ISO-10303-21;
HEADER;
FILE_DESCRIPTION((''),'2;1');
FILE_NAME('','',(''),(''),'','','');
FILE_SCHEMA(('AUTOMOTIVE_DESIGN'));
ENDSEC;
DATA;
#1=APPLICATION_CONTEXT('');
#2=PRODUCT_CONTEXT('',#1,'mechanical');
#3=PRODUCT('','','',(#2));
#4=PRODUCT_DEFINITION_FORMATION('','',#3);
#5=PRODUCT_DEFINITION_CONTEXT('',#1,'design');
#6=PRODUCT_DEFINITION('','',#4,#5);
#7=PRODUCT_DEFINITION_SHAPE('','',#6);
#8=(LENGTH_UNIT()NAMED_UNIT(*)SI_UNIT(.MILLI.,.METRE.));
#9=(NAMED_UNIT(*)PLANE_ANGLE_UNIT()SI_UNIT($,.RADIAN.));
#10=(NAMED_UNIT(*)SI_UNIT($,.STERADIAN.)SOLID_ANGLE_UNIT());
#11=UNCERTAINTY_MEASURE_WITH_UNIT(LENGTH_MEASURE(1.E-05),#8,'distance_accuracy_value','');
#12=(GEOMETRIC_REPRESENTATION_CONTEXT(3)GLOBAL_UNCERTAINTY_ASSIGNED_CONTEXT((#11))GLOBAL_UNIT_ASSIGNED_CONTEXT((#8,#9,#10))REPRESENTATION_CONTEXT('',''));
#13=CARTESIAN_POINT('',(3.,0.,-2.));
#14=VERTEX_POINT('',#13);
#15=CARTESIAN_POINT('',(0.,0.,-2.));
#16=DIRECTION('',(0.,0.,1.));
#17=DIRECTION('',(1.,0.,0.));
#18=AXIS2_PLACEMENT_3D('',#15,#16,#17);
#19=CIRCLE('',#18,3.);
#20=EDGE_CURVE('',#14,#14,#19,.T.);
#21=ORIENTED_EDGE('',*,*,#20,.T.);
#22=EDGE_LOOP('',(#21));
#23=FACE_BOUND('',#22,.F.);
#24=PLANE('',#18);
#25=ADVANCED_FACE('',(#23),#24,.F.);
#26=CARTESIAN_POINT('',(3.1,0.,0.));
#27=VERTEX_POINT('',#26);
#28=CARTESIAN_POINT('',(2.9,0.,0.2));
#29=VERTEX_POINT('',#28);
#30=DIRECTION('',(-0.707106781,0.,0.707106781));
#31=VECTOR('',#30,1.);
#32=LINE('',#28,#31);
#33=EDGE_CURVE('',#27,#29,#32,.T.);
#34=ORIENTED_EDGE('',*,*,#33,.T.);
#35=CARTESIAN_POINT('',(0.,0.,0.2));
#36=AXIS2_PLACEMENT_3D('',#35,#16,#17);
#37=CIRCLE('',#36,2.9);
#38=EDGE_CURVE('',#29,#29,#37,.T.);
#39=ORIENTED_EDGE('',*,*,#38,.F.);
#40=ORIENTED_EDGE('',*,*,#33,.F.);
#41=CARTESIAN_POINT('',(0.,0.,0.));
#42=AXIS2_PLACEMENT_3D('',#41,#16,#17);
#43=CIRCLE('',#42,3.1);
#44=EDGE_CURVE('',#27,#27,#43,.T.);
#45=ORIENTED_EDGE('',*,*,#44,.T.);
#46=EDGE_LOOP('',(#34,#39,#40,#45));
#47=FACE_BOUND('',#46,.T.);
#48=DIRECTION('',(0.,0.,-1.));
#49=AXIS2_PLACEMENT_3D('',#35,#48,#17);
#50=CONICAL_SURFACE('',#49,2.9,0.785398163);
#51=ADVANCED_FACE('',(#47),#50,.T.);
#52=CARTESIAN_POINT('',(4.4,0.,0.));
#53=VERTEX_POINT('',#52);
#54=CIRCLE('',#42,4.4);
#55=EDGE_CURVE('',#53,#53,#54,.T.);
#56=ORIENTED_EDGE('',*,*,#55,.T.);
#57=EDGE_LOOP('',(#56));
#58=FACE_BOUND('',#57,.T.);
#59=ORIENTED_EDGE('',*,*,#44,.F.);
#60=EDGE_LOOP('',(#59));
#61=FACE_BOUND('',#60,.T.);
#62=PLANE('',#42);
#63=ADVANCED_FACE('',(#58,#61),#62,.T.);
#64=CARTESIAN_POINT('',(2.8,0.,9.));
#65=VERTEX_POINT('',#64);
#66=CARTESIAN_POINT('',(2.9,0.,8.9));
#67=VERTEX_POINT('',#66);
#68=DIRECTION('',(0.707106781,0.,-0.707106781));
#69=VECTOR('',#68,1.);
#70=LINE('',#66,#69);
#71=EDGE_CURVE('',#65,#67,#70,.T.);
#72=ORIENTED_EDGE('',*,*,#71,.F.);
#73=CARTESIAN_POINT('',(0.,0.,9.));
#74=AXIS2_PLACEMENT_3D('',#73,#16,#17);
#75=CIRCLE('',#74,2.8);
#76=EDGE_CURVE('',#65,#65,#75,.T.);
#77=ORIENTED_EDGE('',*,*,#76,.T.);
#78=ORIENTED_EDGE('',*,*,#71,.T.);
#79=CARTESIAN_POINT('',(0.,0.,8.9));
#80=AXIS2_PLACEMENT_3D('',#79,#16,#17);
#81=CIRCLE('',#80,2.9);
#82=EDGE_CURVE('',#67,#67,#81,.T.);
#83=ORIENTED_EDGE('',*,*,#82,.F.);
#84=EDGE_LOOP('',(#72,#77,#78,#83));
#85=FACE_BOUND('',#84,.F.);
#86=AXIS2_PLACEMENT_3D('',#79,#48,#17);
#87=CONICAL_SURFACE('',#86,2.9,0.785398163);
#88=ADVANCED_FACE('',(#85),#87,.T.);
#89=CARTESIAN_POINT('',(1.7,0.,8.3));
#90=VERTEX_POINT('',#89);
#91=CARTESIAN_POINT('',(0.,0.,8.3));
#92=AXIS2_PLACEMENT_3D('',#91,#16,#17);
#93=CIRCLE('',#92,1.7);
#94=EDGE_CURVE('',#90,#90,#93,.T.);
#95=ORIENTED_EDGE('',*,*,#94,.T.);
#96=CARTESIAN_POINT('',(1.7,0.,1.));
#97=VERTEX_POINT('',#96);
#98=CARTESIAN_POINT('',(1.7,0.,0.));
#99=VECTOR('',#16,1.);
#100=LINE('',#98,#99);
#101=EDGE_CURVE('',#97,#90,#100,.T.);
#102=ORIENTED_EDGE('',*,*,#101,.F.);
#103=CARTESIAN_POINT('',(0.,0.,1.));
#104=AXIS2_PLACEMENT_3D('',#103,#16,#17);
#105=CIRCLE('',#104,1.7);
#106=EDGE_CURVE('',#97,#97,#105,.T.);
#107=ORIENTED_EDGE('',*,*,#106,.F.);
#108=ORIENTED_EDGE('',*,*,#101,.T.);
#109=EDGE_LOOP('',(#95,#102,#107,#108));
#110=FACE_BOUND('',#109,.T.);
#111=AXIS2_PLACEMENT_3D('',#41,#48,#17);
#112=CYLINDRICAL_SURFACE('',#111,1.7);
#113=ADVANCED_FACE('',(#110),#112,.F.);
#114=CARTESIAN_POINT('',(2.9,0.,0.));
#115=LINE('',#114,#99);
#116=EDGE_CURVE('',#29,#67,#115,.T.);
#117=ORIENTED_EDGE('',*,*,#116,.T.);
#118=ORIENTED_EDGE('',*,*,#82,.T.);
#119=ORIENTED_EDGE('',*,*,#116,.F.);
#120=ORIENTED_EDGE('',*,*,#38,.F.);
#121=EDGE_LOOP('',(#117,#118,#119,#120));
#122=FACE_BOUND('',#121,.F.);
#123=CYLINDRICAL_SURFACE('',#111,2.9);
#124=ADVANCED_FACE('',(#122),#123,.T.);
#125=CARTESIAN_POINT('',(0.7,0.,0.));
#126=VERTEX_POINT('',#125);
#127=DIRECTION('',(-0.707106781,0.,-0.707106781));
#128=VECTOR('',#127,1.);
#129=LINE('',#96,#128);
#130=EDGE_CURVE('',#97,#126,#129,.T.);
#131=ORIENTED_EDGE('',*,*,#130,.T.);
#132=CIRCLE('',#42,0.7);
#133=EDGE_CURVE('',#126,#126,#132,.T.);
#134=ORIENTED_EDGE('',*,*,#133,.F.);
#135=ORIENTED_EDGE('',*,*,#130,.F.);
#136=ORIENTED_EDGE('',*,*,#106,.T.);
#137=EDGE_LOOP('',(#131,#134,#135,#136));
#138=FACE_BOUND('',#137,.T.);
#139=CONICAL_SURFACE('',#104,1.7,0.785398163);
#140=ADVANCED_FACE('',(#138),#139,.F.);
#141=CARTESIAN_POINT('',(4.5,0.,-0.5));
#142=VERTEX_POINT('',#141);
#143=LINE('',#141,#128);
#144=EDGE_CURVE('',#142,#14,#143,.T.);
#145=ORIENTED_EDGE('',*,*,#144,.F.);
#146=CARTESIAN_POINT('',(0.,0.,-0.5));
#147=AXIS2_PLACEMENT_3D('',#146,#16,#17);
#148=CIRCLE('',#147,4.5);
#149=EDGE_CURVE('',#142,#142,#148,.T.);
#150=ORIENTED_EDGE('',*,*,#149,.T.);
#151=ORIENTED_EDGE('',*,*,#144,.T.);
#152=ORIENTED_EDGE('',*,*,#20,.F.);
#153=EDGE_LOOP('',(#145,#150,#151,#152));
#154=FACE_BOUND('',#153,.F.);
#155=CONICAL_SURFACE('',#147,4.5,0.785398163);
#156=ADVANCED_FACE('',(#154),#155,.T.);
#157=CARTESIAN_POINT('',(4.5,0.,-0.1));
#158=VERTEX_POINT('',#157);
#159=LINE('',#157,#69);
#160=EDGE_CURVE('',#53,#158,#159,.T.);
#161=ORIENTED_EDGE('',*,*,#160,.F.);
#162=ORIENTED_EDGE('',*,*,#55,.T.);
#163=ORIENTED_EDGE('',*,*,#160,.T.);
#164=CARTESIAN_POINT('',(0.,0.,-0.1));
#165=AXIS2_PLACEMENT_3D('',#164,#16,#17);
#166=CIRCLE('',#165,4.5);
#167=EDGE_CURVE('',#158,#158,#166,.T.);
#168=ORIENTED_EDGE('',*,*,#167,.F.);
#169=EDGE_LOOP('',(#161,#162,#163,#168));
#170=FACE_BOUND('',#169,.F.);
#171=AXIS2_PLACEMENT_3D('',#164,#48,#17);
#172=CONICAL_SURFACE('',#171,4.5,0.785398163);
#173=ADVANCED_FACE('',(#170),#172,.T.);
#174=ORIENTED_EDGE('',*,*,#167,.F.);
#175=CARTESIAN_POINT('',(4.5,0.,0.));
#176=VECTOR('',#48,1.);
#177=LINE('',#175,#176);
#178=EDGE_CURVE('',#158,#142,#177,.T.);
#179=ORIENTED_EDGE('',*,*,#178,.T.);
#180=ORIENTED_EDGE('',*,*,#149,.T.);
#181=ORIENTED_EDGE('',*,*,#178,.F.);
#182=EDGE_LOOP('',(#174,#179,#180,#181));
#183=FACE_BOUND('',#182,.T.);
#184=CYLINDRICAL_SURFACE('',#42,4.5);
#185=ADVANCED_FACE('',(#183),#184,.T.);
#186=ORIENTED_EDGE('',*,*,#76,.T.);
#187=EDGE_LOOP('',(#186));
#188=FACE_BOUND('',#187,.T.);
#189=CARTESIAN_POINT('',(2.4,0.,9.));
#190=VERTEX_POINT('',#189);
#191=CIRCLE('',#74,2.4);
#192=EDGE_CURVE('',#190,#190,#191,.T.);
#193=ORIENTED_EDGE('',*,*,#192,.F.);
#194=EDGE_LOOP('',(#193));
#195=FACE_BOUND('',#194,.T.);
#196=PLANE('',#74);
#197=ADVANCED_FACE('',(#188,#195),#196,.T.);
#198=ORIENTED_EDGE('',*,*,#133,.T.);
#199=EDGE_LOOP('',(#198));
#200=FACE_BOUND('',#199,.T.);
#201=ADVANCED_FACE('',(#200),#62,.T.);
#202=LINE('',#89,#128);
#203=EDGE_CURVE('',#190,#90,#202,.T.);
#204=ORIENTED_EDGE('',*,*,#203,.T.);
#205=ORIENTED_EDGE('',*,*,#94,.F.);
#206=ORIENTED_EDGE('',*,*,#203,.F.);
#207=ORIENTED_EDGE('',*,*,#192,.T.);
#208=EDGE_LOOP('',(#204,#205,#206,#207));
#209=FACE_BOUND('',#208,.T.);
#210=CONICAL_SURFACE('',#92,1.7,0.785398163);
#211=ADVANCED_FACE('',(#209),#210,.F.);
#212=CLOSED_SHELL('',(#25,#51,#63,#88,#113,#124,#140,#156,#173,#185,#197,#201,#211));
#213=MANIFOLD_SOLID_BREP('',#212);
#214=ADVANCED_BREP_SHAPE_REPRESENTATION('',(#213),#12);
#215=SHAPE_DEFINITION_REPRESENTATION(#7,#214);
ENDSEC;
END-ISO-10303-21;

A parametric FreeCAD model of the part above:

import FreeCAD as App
import Part
import Sketcher
from FreeCAD import Vector


def edges_at(feature, points):
    """Names of the edges that pass closest to the given points."""
    edges = feature.Shape.Edges
    near = lambda p: min(range(len(edges)), key=lambda i: edges[i].distToShape(Part.Vertex(*p))[0])
    return sorted({f"Edge{near(p) + 1}" for p in points})

doc = App.newDocument("Part")
body = doc.addObject("PartDesign::Body", "Body")

sketch1 = body.newObject("Sketcher::SketchObject", "Sketch")
sketch1.AttachmentSupport = (doc.getObject("XY_Plane"), [""])
sketch1.MapMode = "FlatFace"
sketch1.addGeometry(Part.Circle(Vector(0, 0, 0), Vector(0, 0, 1), 2.9), False)
sketch1.addGeometry(Part.Circle(Vector(0, 0, 0), Vector(0, 0, 1), 1.7), False)
sketch1.addConstraint(Sketcher.Constraint("Coincident", 0, 3, -1, 1))
sketch1.addConstraint(Sketcher.Constraint("Coincident", 1, 3, -1, 1))
sketch1.addConstraint(Sketcher.Constraint("Diameter", 0, 5.8))
sketch1.addConstraint(Sketcher.Constraint("Diameter", 1, 3.4))
pad1 = body.newObject("PartDesign::Pad", "Pad")
pad1.Profile = sketch1
pad1.Length = 9

sketch2 = body.newObject("Sketcher::SketchObject", "Sketch001")
sketch2.AttachmentSupport = (doc.getObject("XY_Plane"), [""])
sketch2.MapMode = "FlatFace"
sketch2.addGeometry(Part.Circle(Vector(0, 0, 0), Vector(0, 0, 1), 4.5), False)
sketch2.addConstraint(Sketcher.Constraint("Coincident", 0, 3, -1, 1))
sketch2.addConstraint(Sketcher.Constraint("Diameter", 0, 9.0))
pad2 = body.newObject("PartDesign::Pad", "Pad001")
pad2.Profile = sketch2
pad2.Length = 2
pad2.Reversed = True
doc.recompute()

chamfer = body.newObject("PartDesign::Chamfer", "Chamfer")
chamfer.Base = (pad2, edges_at(pad2, [(-1.585, 0.615, 0)]))
chamfer.Size = 1
doc.recompute()

chamfer2 = body.newObject("PartDesign::Chamfer", "Chamfer001")
chamfer2.Base = (chamfer, edges_at(chamfer, [(-4.196, 1.627, -2)]))
chamfer2.Size = 1.5
doc.recompute()

chamfer3 = body.newObject("PartDesign::Chamfer", "Chamfer002")
chamfer3.Base = (chamfer2, edges_at(chamfer2, [(-1.585, 0.615, 9)]))
chamfer3.Size = 0.7
doc.recompute()

chamfer4 = body.newObject("PartDesign::Chamfer", "Chamfer003")
chamfer4.Base = (chamfer3, edges_at(chamfer3, [(-2.704, -1.049, 9)]))
chamfer4.Size = 0.1
doc.recompute()

chamfer5 = body.newObject("PartDesign::Chamfer", "Chamfer004")
chamfer5.Base = (chamfer4, edges_at(chamfer4, [(-4.196, -1.627, 0)]))
chamfer5.Size = 0.1
doc.recompute()

chamfer6 = body.newObject("PartDesign::Chamfer", "Chamfer005")
chamfer6.Base = (chamfer5, edges_at(chamfer5, [(-2.704, -1.049, 0)]))
chamfer6.Size = 0.2

doc.recompute()
